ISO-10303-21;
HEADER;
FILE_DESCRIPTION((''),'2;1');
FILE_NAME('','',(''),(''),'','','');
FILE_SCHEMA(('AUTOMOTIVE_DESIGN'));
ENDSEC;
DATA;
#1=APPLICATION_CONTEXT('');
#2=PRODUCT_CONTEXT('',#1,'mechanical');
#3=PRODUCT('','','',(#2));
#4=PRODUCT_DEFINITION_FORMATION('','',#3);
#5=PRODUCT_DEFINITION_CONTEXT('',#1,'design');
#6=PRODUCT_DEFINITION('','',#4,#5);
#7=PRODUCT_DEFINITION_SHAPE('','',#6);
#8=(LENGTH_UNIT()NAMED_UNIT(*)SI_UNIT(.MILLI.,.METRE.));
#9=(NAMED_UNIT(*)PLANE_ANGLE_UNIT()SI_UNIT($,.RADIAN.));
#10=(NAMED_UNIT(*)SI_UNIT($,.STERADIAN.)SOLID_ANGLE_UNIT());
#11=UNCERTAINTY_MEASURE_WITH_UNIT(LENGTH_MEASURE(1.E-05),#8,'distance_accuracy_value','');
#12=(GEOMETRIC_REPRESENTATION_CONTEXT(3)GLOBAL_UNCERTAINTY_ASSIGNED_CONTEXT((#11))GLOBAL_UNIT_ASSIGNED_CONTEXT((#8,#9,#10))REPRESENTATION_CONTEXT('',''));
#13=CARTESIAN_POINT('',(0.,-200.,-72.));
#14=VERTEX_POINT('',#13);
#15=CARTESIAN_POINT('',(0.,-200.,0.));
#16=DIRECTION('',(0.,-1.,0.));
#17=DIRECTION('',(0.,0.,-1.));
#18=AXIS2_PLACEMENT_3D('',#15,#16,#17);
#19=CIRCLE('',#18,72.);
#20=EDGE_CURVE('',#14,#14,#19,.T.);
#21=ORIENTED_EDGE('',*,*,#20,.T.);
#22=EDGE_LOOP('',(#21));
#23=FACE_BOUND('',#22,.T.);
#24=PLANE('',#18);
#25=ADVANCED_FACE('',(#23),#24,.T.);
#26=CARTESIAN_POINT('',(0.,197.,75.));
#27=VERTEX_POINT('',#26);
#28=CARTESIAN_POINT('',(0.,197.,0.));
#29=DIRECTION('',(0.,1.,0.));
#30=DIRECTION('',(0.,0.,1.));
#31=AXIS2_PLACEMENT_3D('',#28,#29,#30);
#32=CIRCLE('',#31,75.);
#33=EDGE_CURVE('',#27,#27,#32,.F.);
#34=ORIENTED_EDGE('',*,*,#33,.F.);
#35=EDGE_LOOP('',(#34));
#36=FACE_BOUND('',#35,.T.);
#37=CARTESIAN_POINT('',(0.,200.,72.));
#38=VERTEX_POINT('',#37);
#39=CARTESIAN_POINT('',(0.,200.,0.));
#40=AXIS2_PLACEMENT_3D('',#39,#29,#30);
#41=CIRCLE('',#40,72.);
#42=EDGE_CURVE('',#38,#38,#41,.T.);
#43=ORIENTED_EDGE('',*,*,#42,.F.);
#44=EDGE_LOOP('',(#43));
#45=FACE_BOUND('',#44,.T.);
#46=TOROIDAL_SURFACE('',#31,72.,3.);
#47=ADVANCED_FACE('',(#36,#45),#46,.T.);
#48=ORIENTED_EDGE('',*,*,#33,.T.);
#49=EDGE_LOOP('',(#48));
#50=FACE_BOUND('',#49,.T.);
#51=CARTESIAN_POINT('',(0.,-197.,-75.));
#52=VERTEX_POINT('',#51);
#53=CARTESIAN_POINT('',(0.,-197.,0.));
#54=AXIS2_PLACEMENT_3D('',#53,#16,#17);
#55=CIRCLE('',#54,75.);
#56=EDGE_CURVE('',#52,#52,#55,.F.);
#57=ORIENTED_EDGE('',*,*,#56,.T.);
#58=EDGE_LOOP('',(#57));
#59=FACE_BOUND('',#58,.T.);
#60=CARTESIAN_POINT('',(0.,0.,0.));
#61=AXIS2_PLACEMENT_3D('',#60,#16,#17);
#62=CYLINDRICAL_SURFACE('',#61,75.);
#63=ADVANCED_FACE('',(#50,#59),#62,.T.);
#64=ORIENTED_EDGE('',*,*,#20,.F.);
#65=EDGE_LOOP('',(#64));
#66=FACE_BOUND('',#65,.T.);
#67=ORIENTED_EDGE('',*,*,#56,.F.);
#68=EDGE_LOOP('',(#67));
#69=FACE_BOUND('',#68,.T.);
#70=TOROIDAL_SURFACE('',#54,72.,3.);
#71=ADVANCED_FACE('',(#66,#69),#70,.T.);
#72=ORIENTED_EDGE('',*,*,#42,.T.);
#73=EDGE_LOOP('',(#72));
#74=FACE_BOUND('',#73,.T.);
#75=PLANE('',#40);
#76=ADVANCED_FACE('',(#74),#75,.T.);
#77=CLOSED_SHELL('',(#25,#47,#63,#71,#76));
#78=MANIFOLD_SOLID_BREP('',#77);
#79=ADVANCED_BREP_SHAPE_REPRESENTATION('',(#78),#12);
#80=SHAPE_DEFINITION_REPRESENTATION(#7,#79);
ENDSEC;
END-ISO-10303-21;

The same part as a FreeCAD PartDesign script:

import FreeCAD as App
import Part
import Sketcher

V = App.Vector
Q = App.Units.Quantity


def edges_at(feature, points):
    """Names of the edges that pass closest to the given points."""
    edges = feature.Shape.Edges
    near = lambda p: min(range(len(edges)), key=lambda i: edges[i].distToShape(Part.Vertex(*p))[0])
    return sorted({f"Edge{near(p) + 1}" for p in points})

doc = App.newDocument("Part")
body = doc.addObject("PartDesign::Body", "Body")

# Sketch on XY plane
sketch1 = doc.addObject("Sketcher::SketchObject", "Sketch")
body.addObject(sketch1)
sketch1.AttachmentSupport = (doc.XY_Plane, [""])
sketch1.MapMode = "FlatFace"
sketch1.addGeometry([
    Part.LineSegment(V(0, 200, 0), V(0, -200, 0)),
    Part.LineSegment(V(0, -200, 0), V(75, -200, 0)),
    Part.LineSegment(V(75, -200, 0), V(75, 200, 0)),
    Part.LineSegment(V(75, 200, 0), V(0, 200, 0)),
], False)
sketch1.addConstraint([
    Sketcher.Constraint("Coincident", 0, 2, 1, 1),
    Sketcher.Constraint("Coincident", 1, 2, 2, 1),
    Sketcher.Constraint("Coincident", 2, 2, 3, 1),
    Sketcher.Constraint("Coincident", 3, 2, 0, 1),
    Sketcher.Constraint("Vertical", 0),
    Sketcher.Constraint("Horizontal", 1),
    Sketcher.Constraint("Vertical", 2),
    Sketcher.Constraint("Horizontal", 3),
    Sketcher.Constraint("Symmetric", 0, 2, 3, 2, -1, 1),
    Sketcher.Constraint("DistanceX", 1, 1, 1, 2, Q("75 mm")),
    Sketcher.Constraint("DistanceY", 0, 2, 0, 1, Q("400 mm")),
])
revolution = doc.addObject("PartDesign::Revolution", "Revolution")
body.addObject(revolution)
revolution.Profile = sketch1
revolution.ReferenceAxis = (sketch1, ["V_Axis"])
revolution.Angle = 360
doc.recompute()

fillet = doc.addObject("PartDesign::Fillet", "Fillet")
body.addObject(fillet)
fillet.Base = (revolution, edges_at(revolution, [(0, 200, 75), (0, -200, 75)]))
fillet.Radius = 3

doc.recompute()
